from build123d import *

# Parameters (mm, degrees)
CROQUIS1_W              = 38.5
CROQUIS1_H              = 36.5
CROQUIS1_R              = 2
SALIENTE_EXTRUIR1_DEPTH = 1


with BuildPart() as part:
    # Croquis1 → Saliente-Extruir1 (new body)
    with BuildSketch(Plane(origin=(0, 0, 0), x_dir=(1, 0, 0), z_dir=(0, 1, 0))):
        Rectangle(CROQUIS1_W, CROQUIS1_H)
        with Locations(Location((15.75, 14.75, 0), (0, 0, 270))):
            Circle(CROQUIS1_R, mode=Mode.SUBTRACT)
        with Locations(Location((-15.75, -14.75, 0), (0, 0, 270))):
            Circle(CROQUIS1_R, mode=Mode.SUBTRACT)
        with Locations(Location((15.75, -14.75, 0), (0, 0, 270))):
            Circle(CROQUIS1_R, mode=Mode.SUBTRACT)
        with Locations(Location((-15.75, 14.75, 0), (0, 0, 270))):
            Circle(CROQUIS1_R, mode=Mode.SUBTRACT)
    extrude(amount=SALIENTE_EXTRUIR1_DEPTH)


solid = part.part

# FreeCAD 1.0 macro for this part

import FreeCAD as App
import Part
import Sketcher

V = App.Vector
Q = App.Units.Quantity

doc = App.newDocument("Part")
body = doc.addObject("PartDesign::Body", "Body")

sketch1 = body.newObject("Sketcher::SketchObject", "Sketch")
sketch1.AttachmentSupport = (doc.getObject("XZ_Plane"), [""])
sketch1.MapMode = "FlatFace"
sketch1.addGeometry([
    Part.LineSegment(V(-19.2, -18.2, 0), V(-19.2, 18.2, 0)),
    Part.LineSegment(V(-19.2, 18.2, 0), V(19.2, 18.2, 0)),
    Part.LineSegment(V(19.2, 18.2, 0), V(19.2, -18.2, 0)),
    Part.LineSegment(V(19.2, -18.2, 0), V(-19.2, -18.2, 0)),
    Part.Circle(V(-15.8, 14.8, 0), V(0, 0, 1), 2),
    Part.Circle(V(15.8, 14.8, 0), V(0, 0, 1), 2),
    Part.Circle(V(-15.8, -14.8, 0), V(0, 0, 1), 2),
    Part.Circle(V(15.8, -14.8, 0), V(0, 0, 1), 2),
], False)
sketch1.addConstraint([
    Sketcher.Constraint("Coincident", 0, 2, 1, 1),
    Sketcher.Constraint("Coincident", 1, 2, 2, 1),
    Sketcher.Constraint("Coincident", 2, 2, 3, 1),
    Sketcher.Constraint("Coincident", 3, 2, 0, 1),
    Sketcher.Constraint("Vertical", 0),
    Sketcher.Constraint("Horizontal", 1),
    Sketcher.Constraint("Vertical", 2),
    Sketcher.Constraint("Horizontal", 3),
    Sketcher.Constraint("Equal", 4, 5),
    Sketcher.Constraint("Equal", 5, 6),
    Sketcher.Constraint("Equal", 6, 7),
    Sketcher.Constraint("Symmetric", 5, 3, 6, 3, -1, 1),
    Sketcher.Constraint("Symmetric", 4, 3, 7, 3, -1, 1),
    Sketcher.Constraint("Symmetric", 0, 2, 2, 2, -1, 1),
    Sketcher.Constraint("Symmetric", 4, 3, 5, 3, -2),
    Sketcher.Constraint("Diameter", 4, Q("4 mm")),
    Sketcher.Constraint("DistanceX", 1, 1, 1, 2, Q("38.5 mm")),
    Sketcher.Constraint("DistanceY", 0, 1, 0, 2, Q("36.5 mm")),
    Sketcher.Constraint("DistanceY", 6, 3, 0, 2, Q("33 mm")),
    Sketcher.Constraint("DistanceX", 0, 2, 5, 3, Q("35 mm")),
])
pad1 = body.newObject("PartDesign::Pad", "Pad")
pad1.Profile = sketch1
pad1.Length = 1
pad1.Reversed = True

doc.recompute()
